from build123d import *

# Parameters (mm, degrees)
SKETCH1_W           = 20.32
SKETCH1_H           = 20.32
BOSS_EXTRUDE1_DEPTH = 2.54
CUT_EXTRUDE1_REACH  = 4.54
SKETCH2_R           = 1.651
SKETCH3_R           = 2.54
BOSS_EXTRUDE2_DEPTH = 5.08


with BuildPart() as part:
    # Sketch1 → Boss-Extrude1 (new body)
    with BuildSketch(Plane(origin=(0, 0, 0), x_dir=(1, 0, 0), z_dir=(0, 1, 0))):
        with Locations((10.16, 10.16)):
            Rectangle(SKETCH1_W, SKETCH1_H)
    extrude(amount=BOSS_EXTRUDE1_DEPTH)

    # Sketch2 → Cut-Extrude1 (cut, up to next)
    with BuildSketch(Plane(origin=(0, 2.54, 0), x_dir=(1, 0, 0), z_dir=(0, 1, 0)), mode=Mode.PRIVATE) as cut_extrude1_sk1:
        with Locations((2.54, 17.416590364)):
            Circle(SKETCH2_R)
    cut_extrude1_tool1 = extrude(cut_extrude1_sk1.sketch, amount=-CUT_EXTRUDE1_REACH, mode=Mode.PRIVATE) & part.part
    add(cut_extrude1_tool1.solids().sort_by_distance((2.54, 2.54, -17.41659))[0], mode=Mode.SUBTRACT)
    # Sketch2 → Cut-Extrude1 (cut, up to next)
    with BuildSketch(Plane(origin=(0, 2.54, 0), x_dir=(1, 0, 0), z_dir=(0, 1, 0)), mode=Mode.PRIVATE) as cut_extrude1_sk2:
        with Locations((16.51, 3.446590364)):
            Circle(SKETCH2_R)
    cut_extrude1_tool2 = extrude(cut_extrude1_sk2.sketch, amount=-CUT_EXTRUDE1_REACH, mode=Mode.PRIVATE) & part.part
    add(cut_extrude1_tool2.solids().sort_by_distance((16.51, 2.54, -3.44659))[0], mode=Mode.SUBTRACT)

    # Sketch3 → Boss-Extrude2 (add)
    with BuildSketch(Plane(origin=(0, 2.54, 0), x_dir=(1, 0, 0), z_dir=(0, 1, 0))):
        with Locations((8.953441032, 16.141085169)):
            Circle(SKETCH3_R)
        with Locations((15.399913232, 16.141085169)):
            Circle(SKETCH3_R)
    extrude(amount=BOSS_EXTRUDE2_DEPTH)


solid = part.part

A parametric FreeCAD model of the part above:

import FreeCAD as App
import Part
import Sketcher
from FreeCAD import Vector
Q = App.Units.Quantity


def add_polygon(sketch, points):
    """Adds a closed chain of lines whose ends are joined by coincident constraints."""
    first, n = sketch.GeometryCount, len(points)
    for a, b in zip(points, points[1:] + points[:1]):
        sketch.addGeometry(Part.LineSegment(App.Vector(*a, 0), App.Vector(*b, 0)), False)
    for i in range(n):
        sketch.addConstraint(Sketcher.Constraint("Coincident", first + i, 2, first + (i + 1) % n, 1))

doc = App.newDocument("Part")
body = doc.addObject("PartDesign::Body", "Body")

# Sketch on XZ plane
sketch1 = doc.addObject("Sketcher::SketchObject", "Sketch")
body.addObject(sketch1)
sketch1.AttachmentSupport = (doc.XZ_Plane, [""])
sketch1.MapMode = "FlatFace"
add_polygon(sketch1, [(0, -20.32), (0, 0), (20.32, 0), (20.32, -20.32)])  # lines 0-3
sketch1.addConstraint([
    Sketcher.Constraint("Vertical", 0),
    Sketcher.Constraint("Horizontal", 1),
    Sketcher.Constraint("Vertical", 2),
    Sketcher.Constraint("Horizontal", 3),
    Sketcher.Constraint("Coincident", 0, 2, -1, 1),
    Sketcher.Constraint("Equal", 3, 0),
    Sketcher.Constraint("DistanceX", 1, 1, 1, 2, Q("0.8 in")),
])
pad1 = doc.addObject("PartDesign::Pad", "Pad")
body.addObject(pad1)
pad1.Profile = sketch1
pad1.Length = Q("0.1 in")
pad1.Reversed = True

# Sketch on XZ plane
sketch2 = doc.addObject("Sketcher::SketchObject", "Sketch001")
body.addObject(sketch2)
sketch2.AttachmentSupport = (doc.XZ_Plane, [""])
sketch2.MapMode = "FlatFace"
sketch2.AttachmentOffset = App.Placement(Vector(0, 0, -0.1 * 25.4), App.Rotation())
sketch2.addGeometry(Part.Circle(Vector(2.54, -17.41659, 0), Vector(0, 0, 1), 1.651), False)
sketch2.addConstraint([
    Sketcher.Constraint("Diameter", 0, Q("0.13 in")),
    Sketcher.Constraint("DistanceX", -1, 1, 0, 3, Q("0.1 in")),
    Sketcher.Constraint("DistanceY", 0, 3, -1, 1, Q("17.41659 mm")),
])
pocket1 = doc.addObject("PartDesign::Pocket", "Pocket")
body.addObject(pocket1)
pocket1.Profile = sketch2
pocket1.Type = "UpToFirst"
pocket1.Reversed = True

# Sketch on XZ plane
sketch3 = doc.addObject("Sketcher::SketchObject", "Sketch002")
body.addObject(sketch3)
sketch3.AttachmentSupport = (doc.XZ_Plane, [""])
sketch3.MapMode = "FlatFace"
sketch3.AttachmentOffset = App.Placement(Vector(0, 0, -0.1 * 25.4), App.Rotation())
sketch3.addGeometry(Part.Circle(Vector(16.51, -3.44659, 0), Vector(0, 0, 1), 1.651), False)
sketch3.addConstraint([
    Sketcher.Constraint("Diameter", 0, Q("0.13 in")),
    Sketcher.Constraint("DistanceX", -1, 1, 0, 3, Q("0.65 in")),
    Sketcher.Constraint("DistanceY", 0, 3, -1, 1, Q("3.44659 mm")),
])
pocket2 = doc.addObject("PartDesign::Pocket", "Pocket001")
body.addObject(pocket2)
pocket2.Profile = sketch3
pocket2.Type = "UpToFirst"
pocket2.Reversed = True

# Sketch on XZ plane
sketch4 = doc.addObject("Sketcher::SketchObject", "Sketch003")
body.addObject(sketch4)
sketch4.AttachmentSupport = (doc.XZ_Plane, [""])
sketch4.MapMode = "FlatFace"
sketch4.AttachmentOffset = App.Placement(Vector(0, 0, -0.1 * 25.4), App.Rotation())
sketch4.addGeometry([
    Part.Circle(Vector(8.953441, -16.141085, 0), Vector(0, 0, 1), 2.54),
    Part.Circle(Vector(15.399913, -16.141085, 0), Vector(0, 0, 1), 2.54),
], False)
sketch4.addConstraint([
    Sketcher.Constraint("Equal", 0, 1),
    Sketcher.Constraint("Horizontal", 0, 3, 1, 3),
    Sketcher.Constraint("Diameter", 0, Q("0.2 in")),
    Sketcher.Constraint("DistanceX", -1, 1, 0, 3, Q("8.953441 mm")),
    Sketcher.Constraint("DistanceY", 0, 3, -1, 1, Q("16.141085 mm")),
    Sketcher.Constraint("DistanceX", -1, 1, 1, 3, Q("15.399913 mm")),
])
pad2 = doc.addObject("PartDesign::Pad", "Pad001")
body.addObject(pad2)
pad2.Profile = sketch4
pad2.Length = Q("0.2 in")
pad2.Reversed = True

doc.recompute()
